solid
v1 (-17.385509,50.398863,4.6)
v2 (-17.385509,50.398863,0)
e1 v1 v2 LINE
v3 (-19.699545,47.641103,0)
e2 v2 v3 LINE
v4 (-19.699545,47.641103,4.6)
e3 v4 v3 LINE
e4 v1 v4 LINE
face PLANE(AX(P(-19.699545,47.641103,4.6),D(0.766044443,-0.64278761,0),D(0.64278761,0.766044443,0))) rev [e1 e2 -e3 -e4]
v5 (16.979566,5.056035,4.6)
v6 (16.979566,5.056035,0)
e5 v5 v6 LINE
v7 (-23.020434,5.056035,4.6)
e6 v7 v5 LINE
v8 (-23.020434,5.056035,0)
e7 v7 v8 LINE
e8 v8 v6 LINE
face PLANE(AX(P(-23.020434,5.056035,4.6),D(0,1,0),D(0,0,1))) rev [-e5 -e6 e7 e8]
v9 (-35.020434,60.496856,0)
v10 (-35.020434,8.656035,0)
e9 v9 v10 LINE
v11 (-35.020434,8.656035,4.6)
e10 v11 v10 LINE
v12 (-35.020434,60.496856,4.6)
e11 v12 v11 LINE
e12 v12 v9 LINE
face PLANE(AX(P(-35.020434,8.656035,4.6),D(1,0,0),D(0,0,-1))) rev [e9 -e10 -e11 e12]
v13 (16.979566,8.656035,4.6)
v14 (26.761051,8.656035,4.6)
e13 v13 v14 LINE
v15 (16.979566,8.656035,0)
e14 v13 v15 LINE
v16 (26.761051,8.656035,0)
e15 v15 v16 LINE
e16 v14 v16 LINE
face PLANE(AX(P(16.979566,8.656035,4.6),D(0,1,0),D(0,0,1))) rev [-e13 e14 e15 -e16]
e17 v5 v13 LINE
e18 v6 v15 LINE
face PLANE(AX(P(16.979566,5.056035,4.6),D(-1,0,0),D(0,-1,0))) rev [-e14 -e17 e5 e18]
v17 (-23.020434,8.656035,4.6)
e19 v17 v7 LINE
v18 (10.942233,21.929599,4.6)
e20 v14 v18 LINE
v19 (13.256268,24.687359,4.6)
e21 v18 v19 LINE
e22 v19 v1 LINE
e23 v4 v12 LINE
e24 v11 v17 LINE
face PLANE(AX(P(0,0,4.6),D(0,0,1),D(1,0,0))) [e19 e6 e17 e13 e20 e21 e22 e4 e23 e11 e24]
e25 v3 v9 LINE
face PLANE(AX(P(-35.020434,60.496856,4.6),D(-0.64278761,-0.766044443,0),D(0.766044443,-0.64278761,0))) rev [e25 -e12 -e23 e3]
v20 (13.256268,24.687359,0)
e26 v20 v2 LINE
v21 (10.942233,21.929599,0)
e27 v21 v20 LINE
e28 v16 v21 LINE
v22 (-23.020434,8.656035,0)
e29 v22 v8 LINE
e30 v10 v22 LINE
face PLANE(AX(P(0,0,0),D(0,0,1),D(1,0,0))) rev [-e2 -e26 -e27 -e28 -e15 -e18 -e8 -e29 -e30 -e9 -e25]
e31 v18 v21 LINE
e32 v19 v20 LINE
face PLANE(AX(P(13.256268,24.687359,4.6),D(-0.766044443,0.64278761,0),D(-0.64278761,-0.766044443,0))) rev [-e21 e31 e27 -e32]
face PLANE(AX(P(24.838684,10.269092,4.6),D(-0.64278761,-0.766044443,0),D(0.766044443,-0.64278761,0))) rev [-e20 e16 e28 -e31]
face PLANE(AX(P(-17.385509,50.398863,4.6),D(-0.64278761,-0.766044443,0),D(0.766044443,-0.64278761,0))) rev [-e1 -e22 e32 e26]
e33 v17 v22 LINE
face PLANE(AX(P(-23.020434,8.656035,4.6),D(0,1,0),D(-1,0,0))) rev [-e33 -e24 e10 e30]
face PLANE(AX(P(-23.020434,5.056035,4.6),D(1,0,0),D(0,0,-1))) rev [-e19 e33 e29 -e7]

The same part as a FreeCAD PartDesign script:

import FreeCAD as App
import Part
import Sketcher

V = App.Vector
Q = App.Units.Quantity

doc = App.newDocument("Part")
body = doc.addObject("PartDesign::Body", "Body")

sketch1 = body.newObject("Sketcher::SketchObject", "Sketch")
sketch1.AttachmentSupport = (doc.getObject("XY_Plane"), [""])
sketch1.MapMode = "FlatFace"
sketch1.addGeometry(Part.LineSegment(V(-23, 8.7, 0), V(-23, 5.1, 0)), False)
sketch1.addGeometry(Part.LineSegment(V(-23, 5.1, 0), V(17, 5.1, 0)), False)
sketch1.addGeometry(Part.LineSegment(V(17, 5.1, 0), V(17, 8.7, 0)), False)
sketch1.addGeometry(Part.LineSegment(V(17, 8.7, 0), V(26.8, 8.7, 0)), False)
sketch1.addGeometry(Part.LineSegment(V(26.8, 8.7, 0), V(25.7, 9.5, 0)), False)
sketch1.addGeometry(Part.LineSegment(V(25.7, 9.5, 0), V(24.8, 10.3, 0)), False)
sketch1.addGeometry(Part.LineSegment(V(24.8, 10.3, 0), V(10.9, 21.9, 0)), False)
sketch1.addGeometry(Part.LineSegment(V(10.9, 21.9, 0), V(13.3, 24.7, 0)), False)
sketch1.addGeometry(Part.LineSegment(V(13.3, 24.7, 0), V(-17.4, 50.4, 0)), False)
sketch1.addGeometry(Part.LineSegment(V(-17.4, 50.4, 0), V(-19.7, 47.6, 0)), False)
sketch1.addGeometry(Part.LineSegment(V(-19.7, 47.6, 0), V(-35, 60.5, 0)), False)
sketch1.addGeometry(Part.LineSegment(V(-35, 60.5, 0), V(-35, 8.7, 0)), False)
sketch1.addGeometry(Part.LineSegment(V(-35, 8.7, 0), V(-23, 8.7, 0)), False)
sketch1.addConstraint(Sketcher.Constraint("Coincident", 0, 2, 1, 1))
sketch1.addConstraint(Sketcher.Constraint("Coincident", 1, 2, 2, 1))
sketch1.addConstraint(Sketcher.Constraint("Coincident", 2, 2, 3, 1))
sketch1.addConstraint(Sketcher.Constraint("Coincident", 3, 2, 4, 1))
sketch1.addConstraint(Sketcher.Constraint("Coincident", 4, 2, 5, 1))
sketch1.addConstraint(Sketcher.Constraint("Coincident", 5, 2, 6, 1))
sketch1.addConstraint(Sketcher.Constraint("Coincident", 6, 2, 7, 1))
sketch1.addConstraint(Sketcher.Constraint("Coincident", 7, 2, 8, 1))
sketch1.addConstraint(Sketcher.Constraint("Coincident", 8, 2, 9, 1))
sketch1.addConstraint(Sketcher.Constraint("Coincident", 9, 2, 10, 1))
sketch1.addConstraint(Sketcher.Constraint("Coincident", 10, 2, 11, 1))
sketch1.addConstraint(Sketcher.Constraint("Coincident", 11, 2, 12, 1))
sketch1.addConstraint(Sketcher.Constraint("Coincident", 12, 2, 0, 1))
sketch1.addConstraint(Sketcher.Constraint("Vertical", 0))
sketch1.addConstraint(Sketcher.Constraint("Horizontal", 1))
sketch1.addConstraint(Sketcher.Constraint("Vertical", 2))
sketch1.addConstraint(Sketcher.Constraint("Horizontal", 3))
sketch1.addConstraint(Sketcher.Constraint("Vertical", 11))
sketch1.addConstraint(Sketcher.Constraint("Horizontal", 12))
sketch1.addConstraint(Sketcher.Constraint("Parallel", 4, 5))
sketch1.addConstraint(Sketcher.Constraint("Parallel", 5, 6))
sketch1.addConstraint(Sketcher.Constraint("Perpendicular", 6, 7))
sketch1.addConstraint(Sketcher.Constraint("Perpendicular", 7, 8))
sketch1.addConstraint(Sketcher.Constraint("Perpendicular", 8, 9))
sketch1.addConstraint(Sketcher.Constraint("Perpendicular", 9, 10))
sketch1.addConstraint(Sketcher.Constraint("Horizontal", 3, 2, 11, 2))
sketch1.addConstraint(Sketcher.Constraint("Equal", 7, 9))
sketch1.addConstraint(Sketcher.Constraint("DistanceX", 1, 1, 1, 2, Q("40 mm")))
sketch1.addConstraint(Sketcher.Constraint("DistanceX", 12, 1, 12, 2, Q("12 mm")))
sketch1.addConstraint(Sketcher.Constraint("Angle", 4, Q("140 deg")))
sketch1.addConstraint(Sketcher.Constraint("Distance", 8, Q("40 mm")))
sketch1.addConstraint(Sketcher.Constraint("Distance", 10, Q("20 mm")))
sketch1.addConstraint(Sketcher.Constraint("DistanceY", 0, 2, 0, 1, Q("3.6 mm")))
sketch1.addConstraint(Sketcher.Constraint("Distance", 7, Q("3.6 mm")))
sketch1.addConstraint(Sketcher.Constraint("DistanceY", 11, 2, 11, 1, Q("51.840821 mm")))
sketch1.addConstraint(Sketcher.Constraint("DistanceY", -1, 1, 6, 2, Q("21.929599 mm")))
sketch1.addConstraint(Sketcher.Constraint("Distance", 5, Q("1.127668 mm")))
sketch1.addConstraint(Sketcher.Constraint("Distance", 6, Q("18.140529 mm")))
sketch1.addConstraint(Sketcher.Constraint("DistanceX", -1, 1, 3, 2, Q("26.761051 mm")))
pad1 = body.newObject("PartDesign::Pad", "Pad")
pad1.Profile = sketch1
pad1.Length = 4.6

doc.recompute()
